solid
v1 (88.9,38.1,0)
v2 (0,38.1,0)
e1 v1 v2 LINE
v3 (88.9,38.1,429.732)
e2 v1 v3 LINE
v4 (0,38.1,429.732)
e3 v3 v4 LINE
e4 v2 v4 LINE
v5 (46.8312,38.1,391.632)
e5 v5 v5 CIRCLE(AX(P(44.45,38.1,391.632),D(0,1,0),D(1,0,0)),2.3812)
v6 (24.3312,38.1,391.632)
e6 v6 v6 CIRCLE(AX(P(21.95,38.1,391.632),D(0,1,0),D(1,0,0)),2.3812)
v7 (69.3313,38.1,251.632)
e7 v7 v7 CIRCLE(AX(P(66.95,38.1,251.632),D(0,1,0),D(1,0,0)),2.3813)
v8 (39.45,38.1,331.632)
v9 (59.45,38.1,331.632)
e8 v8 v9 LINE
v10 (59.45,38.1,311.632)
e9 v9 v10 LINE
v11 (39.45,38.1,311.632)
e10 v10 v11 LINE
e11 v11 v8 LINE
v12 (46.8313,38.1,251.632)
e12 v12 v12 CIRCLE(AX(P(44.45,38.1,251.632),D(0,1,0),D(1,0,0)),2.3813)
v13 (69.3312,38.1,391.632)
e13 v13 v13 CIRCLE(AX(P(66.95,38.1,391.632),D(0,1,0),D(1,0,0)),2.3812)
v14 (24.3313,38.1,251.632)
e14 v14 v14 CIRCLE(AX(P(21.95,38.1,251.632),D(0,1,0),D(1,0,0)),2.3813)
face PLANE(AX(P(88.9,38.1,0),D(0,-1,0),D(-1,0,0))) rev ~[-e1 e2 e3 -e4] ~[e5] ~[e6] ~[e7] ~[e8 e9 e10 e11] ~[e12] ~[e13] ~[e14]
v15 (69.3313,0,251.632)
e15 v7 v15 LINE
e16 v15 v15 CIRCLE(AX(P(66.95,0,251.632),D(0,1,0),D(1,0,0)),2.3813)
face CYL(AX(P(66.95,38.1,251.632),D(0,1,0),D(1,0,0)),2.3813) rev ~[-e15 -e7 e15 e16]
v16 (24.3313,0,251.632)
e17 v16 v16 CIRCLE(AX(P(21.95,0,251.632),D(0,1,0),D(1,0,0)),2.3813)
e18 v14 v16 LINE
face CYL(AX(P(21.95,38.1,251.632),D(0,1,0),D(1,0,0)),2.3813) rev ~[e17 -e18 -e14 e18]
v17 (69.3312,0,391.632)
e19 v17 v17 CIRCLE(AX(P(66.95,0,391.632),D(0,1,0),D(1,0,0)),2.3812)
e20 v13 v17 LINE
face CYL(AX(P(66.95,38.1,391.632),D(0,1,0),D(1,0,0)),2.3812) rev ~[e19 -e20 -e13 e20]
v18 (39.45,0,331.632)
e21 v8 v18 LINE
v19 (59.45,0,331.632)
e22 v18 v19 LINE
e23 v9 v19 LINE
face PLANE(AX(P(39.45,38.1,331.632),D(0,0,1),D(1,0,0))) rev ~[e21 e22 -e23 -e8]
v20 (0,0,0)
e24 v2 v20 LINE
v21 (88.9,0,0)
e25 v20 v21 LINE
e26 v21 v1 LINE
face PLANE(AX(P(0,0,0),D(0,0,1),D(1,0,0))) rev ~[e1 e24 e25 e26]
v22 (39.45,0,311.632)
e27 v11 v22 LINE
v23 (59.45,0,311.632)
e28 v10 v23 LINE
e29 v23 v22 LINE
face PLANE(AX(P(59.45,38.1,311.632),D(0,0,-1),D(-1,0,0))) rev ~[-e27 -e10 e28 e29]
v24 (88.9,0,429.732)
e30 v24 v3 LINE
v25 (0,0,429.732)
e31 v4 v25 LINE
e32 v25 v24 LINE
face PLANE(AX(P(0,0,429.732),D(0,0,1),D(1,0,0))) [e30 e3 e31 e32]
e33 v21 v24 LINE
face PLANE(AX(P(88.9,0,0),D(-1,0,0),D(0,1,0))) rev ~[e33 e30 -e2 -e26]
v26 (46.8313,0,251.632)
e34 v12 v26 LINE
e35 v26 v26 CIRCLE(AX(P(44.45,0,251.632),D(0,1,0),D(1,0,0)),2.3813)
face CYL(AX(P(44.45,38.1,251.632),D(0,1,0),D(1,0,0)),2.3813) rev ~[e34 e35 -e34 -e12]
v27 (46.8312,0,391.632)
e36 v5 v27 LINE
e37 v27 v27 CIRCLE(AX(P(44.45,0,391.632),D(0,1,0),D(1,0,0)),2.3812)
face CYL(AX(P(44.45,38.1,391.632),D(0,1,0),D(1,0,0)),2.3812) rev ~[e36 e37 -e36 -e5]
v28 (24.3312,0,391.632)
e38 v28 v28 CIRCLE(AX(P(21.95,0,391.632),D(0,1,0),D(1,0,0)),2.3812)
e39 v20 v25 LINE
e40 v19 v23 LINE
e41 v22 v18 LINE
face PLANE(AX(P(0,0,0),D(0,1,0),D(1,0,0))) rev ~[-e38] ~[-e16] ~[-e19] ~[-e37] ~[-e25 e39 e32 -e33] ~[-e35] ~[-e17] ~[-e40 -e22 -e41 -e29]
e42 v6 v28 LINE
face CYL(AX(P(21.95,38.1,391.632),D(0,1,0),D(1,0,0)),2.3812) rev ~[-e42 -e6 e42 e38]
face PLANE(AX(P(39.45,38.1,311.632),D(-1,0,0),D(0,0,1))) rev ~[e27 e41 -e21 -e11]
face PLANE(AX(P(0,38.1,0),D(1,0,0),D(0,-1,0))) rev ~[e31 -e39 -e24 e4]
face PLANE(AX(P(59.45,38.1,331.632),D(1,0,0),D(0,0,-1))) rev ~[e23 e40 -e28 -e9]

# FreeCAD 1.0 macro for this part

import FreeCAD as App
import Part
import Sketcher
Q = App.Units.Quantity


def add_polygon(sketch, points):
    """Adds a closed chain of lines whose ends are joined by coincident constraints."""
    first, n = sketch.GeometryCount, len(points)
    for a, b in zip(points, points[1:] + points[:1]):
        sketch.addGeometry(Part.LineSegment(App.Vector(*a, 0), App.Vector(*b, 0)), False)
    for i in range(n):
        sketch.addConstraint(Sketcher.Constraint("Coincident", first + i, 2, first + (i + 1) % n, 1))

doc = App.newDocument("Part")
body = doc.addObject("PartDesign::Body", "Body")

# Sketch on XY plane
sketch1 = body.newObject("Sketcher::SketchObject", "Sketch")
sketch1.AttachmentSupport = (doc.getObject("XY_Plane"), [""])
sketch1.MapMode = "FlatFace"
add_polygon(sketch1, [(0, 38), (0, 0), (89, 0), (89, 38)])  # lines 0-3
sketch1.addConstraint(Sketcher.Constraint("Vertical", 0))
sketch1.addConstraint(Sketcher.Constraint("Horizontal", 1))
sketch1.addConstraint(Sketcher.Constraint("Vertical", 2))
sketch1.addConstraint(Sketcher.Constraint("Horizontal", 3))
sketch1.addConstraint(Sketcher.Constraint("Coincident", 0, 2, -1, 1))
sketch1.addConstraint(Sketcher.Constraint("DistanceX", 1, 1, 1, 2, Q("3.5 in")))
sketch1.addConstraint(Sketcher.Constraint("DistanceY", 0, 2, 0, 1, Q("1.5 in")))
pad1 = body.newObject("PartDesign::Pad", "Pad")
pad1.Profile = sketch1
pad1.Length = 429.732

# Sketch on XZ plane
sketch2 = body.newObject("Sketcher::SketchObject", "Sketch001")
sketch2.AttachmentSupport = (doc.getObject("XZ_Plane"), [""])
sketch2.MapMode = "FlatFace"
sketch2.AttachmentOffset = App.Placement(App.Vector(0, 0, -1.5 * 25.4), App.Rotation())
sketch2.addGeometry(Part.Circle(App.Vector(21.9, 391.6, 0), App.Vector(0, 0, 1), 2.4), False)  # 0
sketch2.addGeometry(Part.Circle(App.Vector(44.5, 391.6, 0), App.Vector(0, 0, 1), 2.4), False)  # 1
sketch2.addGeometry(Part.Circle(App.Vector(67, 391.6, 0), App.Vector(0, 0, 1), 2.4), False)  # 2
sketch2.addGeometry(Part.Circle(App.Vector(67, 251.6, 0), App.Vector(0, 0, 1), 2.4), False)  # 3
sketch2.addGeometry(Part.Circle(App.Vector(44.5, 251.6, 0), App.Vector(0, 0, 1), 2.4), False)  # 4
sketch2.addGeometry(Part.Circle(App.Vector(21.9, 251.6, 0), App.Vector(0, 0, 1), 2.4), False)  # 5
add_polygon(sketch2, [(39.5, 311.6), (39.5, 331.6), (59.5, 331.6), (59.5, 311.6)])  # lines 6-9
sketch2.addConstraint(Sketcher.Constraint("Vertical", 6))
sketch2.addConstraint(Sketcher.Constraint("Horizontal", 7))
sketch2.addConstraint(Sketcher.Constraint("Vertical", 8))
sketch2.addConstraint(Sketcher.Constraint("Horizontal", 9))
sketch2.addConstraint(Sketcher.Constraint("Equal", 0, 1))
sketch2.addConstraint(Sketcher.Constraint("Equal", 1, 2))
sketch2.addConstraint(Sketcher.Constraint("Equal", 2, 3))
sketch2.addConstraint(Sketcher.Constraint("Equal", 3, 4))
sketch2.addConstraint(Sketcher.Constraint("Equal", 4, 5))
sketch2.addConstraint(Sketcher.Constraint("Horizontal", 0, 3, 1, 3))
sketch2.addConstraint(Sketcher.Constraint("Horizontal", 1, 3, 2, 3))
sketch2.addConstraint(Sketcher.Constraint("Horizontal", 3, 3, 4, 3))
sketch2.addConstraint(Sketcher.Constraint("Horizontal", 4, 3, 5, 3))
sketch2.addConstraint(Sketcher.Constraint("Vertical", 2, 3, 3, 3))
sketch2.addConstraint(Sketcher.Constraint("Vertical", 1, 3, 4, 3))
sketch2.addConstraint(Sketcher.Constraint("Vertical", 0, 3, 5, 3))
sketch2.addConstraint(Sketcher.Constraint("Equal", 9, 6))
sketch2.addConstraint(Sketcher.Constraint("Diameter", 0, Q("0.1875 in")))
sketch2.addConstraint(Sketcher.Constraint("DistanceX", 7, 1, 7, 2, Q("0.7874 in")))
sketch2.addConstraint(Sketcher.Constraint("DistanceY", 3, 3, 2, 3, Q("5.5118 in")))
sketch2.addConstraint(Sketcher.Constraint("DistanceY", 6, 2, 1, 3, Q("2.3622 in")))
sketch2.addConstraint(Sketcher.Constraint("DistanceX", -1, 1, 1, 3, Q("1.75 in")))
sketch2.addConstraint(Sketcher.Constraint("DistanceX", 0, 3, 2, 3, Q("45 mm")))
sketch2.addConstraint(Sketcher.Constraint("DistanceX", 7, 2, 2, 3, Q("7.5 mm")))
sketch2.addConstraint(Sketcher.Constraint("DistanceX", -1, 1, 0, 3, Q("21.95 mm")))
sketch2.addConstraint(Sketcher.Constraint("DistanceY", -1, 1, 0, 3, Q("391.632 mm")))
pocket1 = body.newObject("PartDesign::Pocket", "Pocket")
pocket1.Profile = sketch2
pocket1.Type = "ThroughAll"
pocket1.Reversed = True

doc.recompute()
